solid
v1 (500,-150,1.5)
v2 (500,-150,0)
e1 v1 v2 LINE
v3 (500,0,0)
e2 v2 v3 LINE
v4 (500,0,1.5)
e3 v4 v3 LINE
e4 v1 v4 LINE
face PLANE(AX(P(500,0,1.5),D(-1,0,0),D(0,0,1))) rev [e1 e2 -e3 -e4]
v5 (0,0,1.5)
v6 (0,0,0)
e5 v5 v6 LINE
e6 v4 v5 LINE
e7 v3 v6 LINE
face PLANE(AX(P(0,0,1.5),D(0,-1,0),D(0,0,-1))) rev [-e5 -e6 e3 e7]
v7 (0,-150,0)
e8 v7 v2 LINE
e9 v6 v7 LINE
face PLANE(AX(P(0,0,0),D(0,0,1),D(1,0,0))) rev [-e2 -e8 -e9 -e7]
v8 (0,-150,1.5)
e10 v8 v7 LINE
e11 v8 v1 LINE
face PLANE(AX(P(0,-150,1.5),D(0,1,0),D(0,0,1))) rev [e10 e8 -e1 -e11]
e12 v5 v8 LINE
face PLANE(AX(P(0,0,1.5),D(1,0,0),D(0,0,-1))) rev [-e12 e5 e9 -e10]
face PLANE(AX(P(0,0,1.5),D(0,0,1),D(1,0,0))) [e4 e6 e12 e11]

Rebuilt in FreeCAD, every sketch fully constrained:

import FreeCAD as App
import Part
import Sketcher

V = App.Vector

doc = App.newDocument("Part")
body = doc.addObject("PartDesign::Body", "Body")

# Sketch on XY plane
sketch1 = body.newObject("Sketcher::SketchObject", "Sketch")
sketch1.AttachmentSupport = (doc.getObject("XY_Plane"), [""])
sketch1.MapMode = "FlatFace"
sketch1.addGeometry([
    Part.LineSegment(V(0, 0, 0), V(0, -150, 0)),
    Part.LineSegment(V(0, -150, 0), V(500, -150, 0)),
    Part.LineSegment(V(500, -150, 0), V(500, 0, 0)),
    Part.LineSegment(V(500, 0, 0), V(0, 0, 0)),
], False)
sketch1.addConstraint([
    Sketcher.Constraint("Coincident", 0, 2, 1, 1),
    Sketcher.Constraint("Coincident", 1, 2, 2, 1),
    Sketcher.Constraint("Coincident", 2, 2, 3, 1),
    Sketcher.Constraint("Coincident", 3, 2, 0, 1),
    Sketcher.Constraint("Vertical", 0),
    Sketcher.Constraint("Horizontal", 1),
    Sketcher.Constraint("Vertical", 2),
    Sketcher.Constraint("Horizontal", 3),
    Sketcher.Constraint("Coincident", 3, 2, -1, 1),
    Sketcher.Constraint("DistanceX", 1, 1, 1, 2, 500.0),
    Sketcher.Constraint("DistanceY", 0, 2, 0, 1, 150.0),
])
pad1 = body.newObject("PartDesign::Pad", "Pad")
pad1.Profile = sketch1
pad1.Length = 1.5

doc.recompute()
